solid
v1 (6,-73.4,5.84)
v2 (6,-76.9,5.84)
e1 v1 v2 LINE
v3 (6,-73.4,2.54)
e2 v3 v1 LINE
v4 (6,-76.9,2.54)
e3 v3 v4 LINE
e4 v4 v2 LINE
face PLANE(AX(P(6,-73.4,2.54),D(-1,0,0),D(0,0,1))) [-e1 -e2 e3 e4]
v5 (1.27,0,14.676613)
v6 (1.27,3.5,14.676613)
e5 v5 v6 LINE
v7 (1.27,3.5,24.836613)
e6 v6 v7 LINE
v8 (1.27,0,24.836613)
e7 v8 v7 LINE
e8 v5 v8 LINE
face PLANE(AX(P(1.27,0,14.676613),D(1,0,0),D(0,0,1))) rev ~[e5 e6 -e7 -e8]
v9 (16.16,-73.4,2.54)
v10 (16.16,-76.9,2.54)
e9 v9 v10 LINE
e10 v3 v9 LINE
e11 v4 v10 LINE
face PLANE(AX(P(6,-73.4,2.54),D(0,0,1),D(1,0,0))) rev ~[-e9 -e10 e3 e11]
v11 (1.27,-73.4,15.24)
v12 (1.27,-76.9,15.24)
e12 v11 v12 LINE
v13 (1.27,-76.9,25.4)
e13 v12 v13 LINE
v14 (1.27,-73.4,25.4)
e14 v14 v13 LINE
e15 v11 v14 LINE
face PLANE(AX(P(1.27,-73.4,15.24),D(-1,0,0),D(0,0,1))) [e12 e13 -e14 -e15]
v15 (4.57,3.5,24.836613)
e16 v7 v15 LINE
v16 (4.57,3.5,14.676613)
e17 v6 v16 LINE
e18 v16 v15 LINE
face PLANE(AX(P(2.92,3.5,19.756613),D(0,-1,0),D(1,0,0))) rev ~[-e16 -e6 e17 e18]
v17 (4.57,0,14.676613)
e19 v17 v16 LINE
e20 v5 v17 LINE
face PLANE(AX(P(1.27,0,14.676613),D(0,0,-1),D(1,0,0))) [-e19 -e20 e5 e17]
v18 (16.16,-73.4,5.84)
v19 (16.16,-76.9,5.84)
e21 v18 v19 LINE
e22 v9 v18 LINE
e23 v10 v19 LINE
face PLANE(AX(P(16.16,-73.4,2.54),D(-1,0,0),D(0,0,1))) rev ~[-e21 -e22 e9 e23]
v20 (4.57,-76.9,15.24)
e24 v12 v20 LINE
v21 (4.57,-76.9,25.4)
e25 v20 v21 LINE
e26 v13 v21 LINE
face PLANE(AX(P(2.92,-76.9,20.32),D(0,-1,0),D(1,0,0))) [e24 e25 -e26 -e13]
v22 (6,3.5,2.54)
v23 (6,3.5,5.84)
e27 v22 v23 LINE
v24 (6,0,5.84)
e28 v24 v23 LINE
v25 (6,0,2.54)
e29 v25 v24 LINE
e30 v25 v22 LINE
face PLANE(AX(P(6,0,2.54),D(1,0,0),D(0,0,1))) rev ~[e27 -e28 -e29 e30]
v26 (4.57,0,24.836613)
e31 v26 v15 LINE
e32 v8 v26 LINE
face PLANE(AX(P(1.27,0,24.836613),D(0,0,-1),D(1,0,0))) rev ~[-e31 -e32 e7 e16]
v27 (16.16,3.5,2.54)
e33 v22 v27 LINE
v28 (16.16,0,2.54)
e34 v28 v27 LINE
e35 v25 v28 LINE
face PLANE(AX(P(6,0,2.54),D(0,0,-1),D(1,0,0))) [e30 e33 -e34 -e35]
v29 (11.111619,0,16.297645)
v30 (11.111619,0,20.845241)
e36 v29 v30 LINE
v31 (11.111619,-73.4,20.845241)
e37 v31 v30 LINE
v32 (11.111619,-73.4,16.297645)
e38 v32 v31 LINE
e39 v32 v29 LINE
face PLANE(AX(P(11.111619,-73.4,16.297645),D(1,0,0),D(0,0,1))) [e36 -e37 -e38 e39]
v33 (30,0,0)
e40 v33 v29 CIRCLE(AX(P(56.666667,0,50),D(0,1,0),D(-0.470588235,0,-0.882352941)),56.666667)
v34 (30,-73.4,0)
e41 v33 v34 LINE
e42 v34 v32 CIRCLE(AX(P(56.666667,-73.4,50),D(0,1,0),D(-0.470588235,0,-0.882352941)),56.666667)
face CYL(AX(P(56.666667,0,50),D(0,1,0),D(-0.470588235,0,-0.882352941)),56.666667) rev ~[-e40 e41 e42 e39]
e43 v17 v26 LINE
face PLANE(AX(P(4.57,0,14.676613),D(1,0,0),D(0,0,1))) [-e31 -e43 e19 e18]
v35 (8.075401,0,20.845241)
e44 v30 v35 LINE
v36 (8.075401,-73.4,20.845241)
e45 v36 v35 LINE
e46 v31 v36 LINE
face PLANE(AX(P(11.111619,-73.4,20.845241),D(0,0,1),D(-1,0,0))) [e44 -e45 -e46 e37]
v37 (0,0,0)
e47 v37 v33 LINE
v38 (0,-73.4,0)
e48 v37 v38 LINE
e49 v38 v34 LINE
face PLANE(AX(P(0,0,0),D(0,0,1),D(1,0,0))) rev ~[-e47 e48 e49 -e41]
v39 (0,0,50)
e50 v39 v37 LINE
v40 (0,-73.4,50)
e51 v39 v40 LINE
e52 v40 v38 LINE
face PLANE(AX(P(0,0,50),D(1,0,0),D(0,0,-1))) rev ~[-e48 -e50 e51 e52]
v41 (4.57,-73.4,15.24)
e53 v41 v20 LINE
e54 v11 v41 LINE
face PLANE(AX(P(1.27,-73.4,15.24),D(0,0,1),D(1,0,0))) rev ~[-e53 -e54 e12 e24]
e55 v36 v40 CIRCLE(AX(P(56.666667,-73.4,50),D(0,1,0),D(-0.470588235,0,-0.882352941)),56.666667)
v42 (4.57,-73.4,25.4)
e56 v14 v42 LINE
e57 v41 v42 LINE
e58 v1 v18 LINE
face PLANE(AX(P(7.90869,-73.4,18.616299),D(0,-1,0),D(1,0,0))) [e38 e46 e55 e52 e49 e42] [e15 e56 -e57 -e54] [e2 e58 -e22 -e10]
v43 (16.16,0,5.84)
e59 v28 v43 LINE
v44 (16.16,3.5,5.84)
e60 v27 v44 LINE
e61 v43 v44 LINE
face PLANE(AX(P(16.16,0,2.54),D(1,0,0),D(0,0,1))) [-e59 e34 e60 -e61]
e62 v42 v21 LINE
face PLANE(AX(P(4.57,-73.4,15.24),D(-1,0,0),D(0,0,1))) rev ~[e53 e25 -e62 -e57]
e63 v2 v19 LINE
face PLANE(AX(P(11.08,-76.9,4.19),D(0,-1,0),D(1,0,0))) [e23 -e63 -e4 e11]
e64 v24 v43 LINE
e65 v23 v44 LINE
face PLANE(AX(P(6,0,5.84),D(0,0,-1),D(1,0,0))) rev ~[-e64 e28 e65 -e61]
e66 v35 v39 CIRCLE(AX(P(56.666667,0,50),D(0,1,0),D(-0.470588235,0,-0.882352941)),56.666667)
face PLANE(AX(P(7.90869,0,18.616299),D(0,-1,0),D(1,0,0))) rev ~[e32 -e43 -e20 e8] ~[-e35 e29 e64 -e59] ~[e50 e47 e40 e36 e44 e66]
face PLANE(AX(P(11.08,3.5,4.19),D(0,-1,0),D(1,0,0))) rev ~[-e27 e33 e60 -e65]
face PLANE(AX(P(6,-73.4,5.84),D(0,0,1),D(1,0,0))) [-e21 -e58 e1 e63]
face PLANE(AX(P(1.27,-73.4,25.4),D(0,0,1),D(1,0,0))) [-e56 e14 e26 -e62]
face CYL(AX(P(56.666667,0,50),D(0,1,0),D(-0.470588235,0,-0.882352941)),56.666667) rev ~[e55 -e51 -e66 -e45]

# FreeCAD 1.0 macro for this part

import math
import FreeCAD as App
import Part
import Sketcher

V = App.Vector

doc = App.newDocument("Part")
body = doc.addObject("PartDesign::Body", "Body")

# Sketch on XZ plane
sketch1 = body.newObject("Sketcher::SketchObject", "Sketch")
sketch1.AttachmentSupport = (doc.getObject("XZ_Plane"), [""])
sketch1.MapMode = "FlatFace"
sketch1.addGeometry([
    Part.LineSegment(V(0, 50, 0), V(0, 0, 0)),
    Part.LineSegment(V(0, 0, 0), V(30, 0, 0)),
    Part.ArcOfCircle(Part.Circle(V(57, 50, 0), V(0, 0, 1), 57), math.radians(180), math.radians(242)),
], False)
sketch1.addConstraint([
    Sketcher.Constraint("Coincident", 0, 2, 1, 1),
    Sketcher.Constraint("Coincident", 1, 2, 2, 2),
    Sketcher.Constraint("Tangent", 2, 1, 0, 1),
    Sketcher.Constraint("Vertical", 0),
    Sketcher.Constraint("Horizontal", 1),
    Sketcher.Constraint("Coincident", 0, 2, -1, 1),
    Sketcher.Constraint("DistanceX", 1, 1, 1, 2, 30.0),
    Sketcher.Constraint("DistanceY", 0, 2, 0, 1, 50.0),
])
pad1 = body.newObject("PartDesign::Pad", "Pad")
pad1.Profile = sketch1
pad1.Length = 73.4

# Sketch on XZ plane
sketch2 = body.newObject("Sketcher::SketchObject", "Sketch001")
sketch2.AttachmentSupport = (doc.getObject("XZ_Plane"), [""])
sketch2.MapMode = "FlatFace"
sketch2.addGeometry([
    Part.LineSegment(V(1.3, 24.8, 0), V(1.3, 14.7, 0)),  # 0
    Part.LineSegment(V(1.3, 14.7, 0), V(4.6, 14.7, 0)),  # 1
    Part.LineSegment(V(4.6, 14.7, 0), V(4.6, 24.8, 0)),  # 2
    Part.LineSegment(V(4.6, 24.8, 0), V(1.3, 24.8, 0)),  # 3
    Part.LineSegment(V(6, 5.8, 0), V(6, 2.5, 0)),  # 4
    Part.LineSegment(V(6, 2.5, 0), V(16.2, 2.5, 0)),  # 5
    Part.LineSegment(V(16.2, 2.5, 0), V(16.2, 5.8, 0)),  # 6
    Part.LineSegment(V(16.2, 5.8, 0), V(6, 5.8, 0)),  # 7
], False)
sketch2.addConstraint([
    Sketcher.Constraint("Coincident", 0, 2, 1, 1),
    Sketcher.Constraint("Coincident", 1, 2, 2, 1),
    Sketcher.Constraint("Coincident", 2, 2, 3, 1),
    Sketcher.Constraint("Coincident", 3, 2, 0, 1),
    Sketcher.Constraint("Coincident", 4, 2, 5, 1),
    Sketcher.Constraint("Coincident", 5, 2, 6, 1),
    Sketcher.Constraint("Coincident", 6, 2, 7, 1),
    Sketcher.Constraint("Coincident", 7, 2, 4, 1),
    Sketcher.Constraint("Vertical", 0),
    Sketcher.Constraint("Horizontal", 1),
    Sketcher.Constraint("Vertical", 2),
    Sketcher.Constraint("Horizontal", 3),
    Sketcher.Constraint("Vertical", 4),
    Sketcher.Constraint("Horizontal", 5),
    Sketcher.Constraint("Vertical", 6),
    Sketcher.Constraint("Horizontal", 7),
    Sketcher.Constraint("Equal", 7, 0),
    Sketcher.Constraint("Equal", 3, 4),
    Sketcher.Constraint("DistanceX", 1, 1, 1, 2, 3.3),
    Sketcher.Constraint("DistanceX", -1, 1, 4, 2, 6.0),
    Sketcher.Constraint("DistanceX", 5, 1, 5, 2, 10.16),
    Sketcher.Constraint("DistanceX", -1, 1, 0, 2, 1.27),
    Sketcher.Constraint("DistanceY", -1, 1, 4, 2, 2.54),
    Sketcher.Constraint("DistanceY", -1, 1, 0, 2, 14.676613),
])
pad2 = body.newObject("PartDesign::Pad", "Pad001")
pad2.Profile = sketch2
pad2.Length = 3.5
pad2.Reversed = True

# Sketch on XZ plane
sketch3 = body.newObject("Sketcher::SketchObject", "Sketch002")
sketch3.AttachmentSupport = (doc.getObject("XZ_Plane"), [""])
sketch3.MapMode = "FlatFace"
sketch3.AttachmentOffset = App.Placement(V(0, 0, 73.4), App.Rotation())
sketch3.addGeometry([
    Part.LineSegment(V(1.3, 25.4, 0), V(1.3, 15.2, 0)),  # 0
    Part.LineSegment(V(1.3, 15.2, 0), V(4.6, 15.2, 0)),  # 1
    Part.LineSegment(V(4.6, 15.2, 0), V(4.6, 25.4, 0)),  # 2
    Part.LineSegment(V(4.6, 25.4, 0), V(1.3, 25.4, 0)),  # 3
    Part.LineSegment(V(6, 5.8, 0), V(6, 2.5, 0)),  # 4
    Part.LineSegment(V(6, 2.5, 0), V(16.2, 2.5, 0)),  # 5
    Part.LineSegment(V(16.2, 2.5, 0), V(16.2, 5.8, 0)),  # 6
    Part.LineSegment(V(16.2, 5.8, 0), V(6, 5.8, 0)),  # 7
], False)
sketch3.addConstraint([
    Sketcher.Constraint("Coincident", 0, 2, 1, 1),
    Sketcher.Constraint("Coincident", 1, 2, 2, 1),
    Sketcher.Constraint("Coincident", 2, 2, 3, 1),
    Sketcher.Constraint("Coincident", 3, 2, 0, 1),
    Sketcher.Constraint("Coincident", 4, 2, 5, 1),
    Sketcher.Constraint("Coincident", 5, 2, 6, 1),
    Sketcher.Constraint("Coincident", 6, 2, 7, 1),
    Sketcher.Constraint("Coincident", 7, 2, 4, 1),
    Sketcher.Constraint("Vertical", 0),
    Sketcher.Constraint("Horizontal", 1),
    Sketcher.Constraint("Vertical", 2),
    Sketcher.Constraint("Horizontal", 3),
    Sketcher.Constraint("Vertical", 4),
    Sketcher.Constraint("Horizontal", 5),
    Sketcher.Constraint("Vertical", 6),
    Sketcher.Constraint("Horizontal", 7),
    Sketcher.Constraint("Equal", 7, 0),
    Sketcher.Constraint("Equal", 3, 4),
    Sketcher.Constraint("DistanceX", 1, 1, 1, 2, 3.3),
    Sketcher.Constraint("DistanceX", -1, 1, 4, 2, 6.0),
    Sketcher.Constraint("DistanceX", 5, 1, 5, 2, 10.16),
    Sketcher.Constraint("DistanceY", -1, 1, 2, 2, 25.4),
    Sketcher.Constraint("DistanceY", 4, 2, 1, 2, 12.7),
    Sketcher.Constraint("DistanceX", -1, 1, 0, 2, 1.27),
])
pad3 = body.newObject("PartDesign::Pad", "Pad002")
pad3.Profile = sketch3
pad3.Length = 3.5

# Sketch on XZ plane
sketch4 = body.newObject("Sketcher::SketchObject", "Sketch003")
sketch4.AttachmentSupport = (doc.getObject("XZ_Plane"), [""])
sketch4.MapMode = "FlatFace"
sketch4.AttachmentOffset = App.Placement(V(0, 0, 73.4), App.Rotation())
sketch4.addGeometry([
    Part.ArcOfCircle(Part.Circle(V(56.7, 50, 0), V(0, 0, 1), 56.7), math.radians(-149.04), math.radians(-143.51)),
    Part.LineSegment(V(11.1, 16.3, 0), V(11.1, 20.8, 0)),
    Part.LineSegment(V(11.1, 20.8, 0), V(8.1, 20.8, 0)),
], False)
sketch4.addConstraint([
    Sketcher.Constraint("Coincident", 0, 2, 1, 1),
    Sketcher.Constraint("Coincident", 1, 2, 2, 1),
    Sketcher.Constraint("Coincident", 2, 2, 0, 1),
    Sketcher.Constraint("Vertical", 1),
    Sketcher.Constraint("Horizontal", 2),
    Sketcher.Constraint("DistanceY", -1, 1, 0, 3, 50.0),
    Sketcher.Constraint("Radius", 0, 56.666667),
    Sketcher.Constraint("DistanceX", -1, 1, 2, 2, 8.075401),
    Sketcher.Constraint("DistanceX", 2, 2, 2, 1, 3.036218),
    Sketcher.Constraint("DistanceY", 1, 1, 1, 2, 4.547595),
])
pad4 = body.newObject("PartDesign::Pad", "Pad003")
pad4.Profile = sketch4
pad4.Length = 73.4
pad4.Reversed = True

doc.recompute()
